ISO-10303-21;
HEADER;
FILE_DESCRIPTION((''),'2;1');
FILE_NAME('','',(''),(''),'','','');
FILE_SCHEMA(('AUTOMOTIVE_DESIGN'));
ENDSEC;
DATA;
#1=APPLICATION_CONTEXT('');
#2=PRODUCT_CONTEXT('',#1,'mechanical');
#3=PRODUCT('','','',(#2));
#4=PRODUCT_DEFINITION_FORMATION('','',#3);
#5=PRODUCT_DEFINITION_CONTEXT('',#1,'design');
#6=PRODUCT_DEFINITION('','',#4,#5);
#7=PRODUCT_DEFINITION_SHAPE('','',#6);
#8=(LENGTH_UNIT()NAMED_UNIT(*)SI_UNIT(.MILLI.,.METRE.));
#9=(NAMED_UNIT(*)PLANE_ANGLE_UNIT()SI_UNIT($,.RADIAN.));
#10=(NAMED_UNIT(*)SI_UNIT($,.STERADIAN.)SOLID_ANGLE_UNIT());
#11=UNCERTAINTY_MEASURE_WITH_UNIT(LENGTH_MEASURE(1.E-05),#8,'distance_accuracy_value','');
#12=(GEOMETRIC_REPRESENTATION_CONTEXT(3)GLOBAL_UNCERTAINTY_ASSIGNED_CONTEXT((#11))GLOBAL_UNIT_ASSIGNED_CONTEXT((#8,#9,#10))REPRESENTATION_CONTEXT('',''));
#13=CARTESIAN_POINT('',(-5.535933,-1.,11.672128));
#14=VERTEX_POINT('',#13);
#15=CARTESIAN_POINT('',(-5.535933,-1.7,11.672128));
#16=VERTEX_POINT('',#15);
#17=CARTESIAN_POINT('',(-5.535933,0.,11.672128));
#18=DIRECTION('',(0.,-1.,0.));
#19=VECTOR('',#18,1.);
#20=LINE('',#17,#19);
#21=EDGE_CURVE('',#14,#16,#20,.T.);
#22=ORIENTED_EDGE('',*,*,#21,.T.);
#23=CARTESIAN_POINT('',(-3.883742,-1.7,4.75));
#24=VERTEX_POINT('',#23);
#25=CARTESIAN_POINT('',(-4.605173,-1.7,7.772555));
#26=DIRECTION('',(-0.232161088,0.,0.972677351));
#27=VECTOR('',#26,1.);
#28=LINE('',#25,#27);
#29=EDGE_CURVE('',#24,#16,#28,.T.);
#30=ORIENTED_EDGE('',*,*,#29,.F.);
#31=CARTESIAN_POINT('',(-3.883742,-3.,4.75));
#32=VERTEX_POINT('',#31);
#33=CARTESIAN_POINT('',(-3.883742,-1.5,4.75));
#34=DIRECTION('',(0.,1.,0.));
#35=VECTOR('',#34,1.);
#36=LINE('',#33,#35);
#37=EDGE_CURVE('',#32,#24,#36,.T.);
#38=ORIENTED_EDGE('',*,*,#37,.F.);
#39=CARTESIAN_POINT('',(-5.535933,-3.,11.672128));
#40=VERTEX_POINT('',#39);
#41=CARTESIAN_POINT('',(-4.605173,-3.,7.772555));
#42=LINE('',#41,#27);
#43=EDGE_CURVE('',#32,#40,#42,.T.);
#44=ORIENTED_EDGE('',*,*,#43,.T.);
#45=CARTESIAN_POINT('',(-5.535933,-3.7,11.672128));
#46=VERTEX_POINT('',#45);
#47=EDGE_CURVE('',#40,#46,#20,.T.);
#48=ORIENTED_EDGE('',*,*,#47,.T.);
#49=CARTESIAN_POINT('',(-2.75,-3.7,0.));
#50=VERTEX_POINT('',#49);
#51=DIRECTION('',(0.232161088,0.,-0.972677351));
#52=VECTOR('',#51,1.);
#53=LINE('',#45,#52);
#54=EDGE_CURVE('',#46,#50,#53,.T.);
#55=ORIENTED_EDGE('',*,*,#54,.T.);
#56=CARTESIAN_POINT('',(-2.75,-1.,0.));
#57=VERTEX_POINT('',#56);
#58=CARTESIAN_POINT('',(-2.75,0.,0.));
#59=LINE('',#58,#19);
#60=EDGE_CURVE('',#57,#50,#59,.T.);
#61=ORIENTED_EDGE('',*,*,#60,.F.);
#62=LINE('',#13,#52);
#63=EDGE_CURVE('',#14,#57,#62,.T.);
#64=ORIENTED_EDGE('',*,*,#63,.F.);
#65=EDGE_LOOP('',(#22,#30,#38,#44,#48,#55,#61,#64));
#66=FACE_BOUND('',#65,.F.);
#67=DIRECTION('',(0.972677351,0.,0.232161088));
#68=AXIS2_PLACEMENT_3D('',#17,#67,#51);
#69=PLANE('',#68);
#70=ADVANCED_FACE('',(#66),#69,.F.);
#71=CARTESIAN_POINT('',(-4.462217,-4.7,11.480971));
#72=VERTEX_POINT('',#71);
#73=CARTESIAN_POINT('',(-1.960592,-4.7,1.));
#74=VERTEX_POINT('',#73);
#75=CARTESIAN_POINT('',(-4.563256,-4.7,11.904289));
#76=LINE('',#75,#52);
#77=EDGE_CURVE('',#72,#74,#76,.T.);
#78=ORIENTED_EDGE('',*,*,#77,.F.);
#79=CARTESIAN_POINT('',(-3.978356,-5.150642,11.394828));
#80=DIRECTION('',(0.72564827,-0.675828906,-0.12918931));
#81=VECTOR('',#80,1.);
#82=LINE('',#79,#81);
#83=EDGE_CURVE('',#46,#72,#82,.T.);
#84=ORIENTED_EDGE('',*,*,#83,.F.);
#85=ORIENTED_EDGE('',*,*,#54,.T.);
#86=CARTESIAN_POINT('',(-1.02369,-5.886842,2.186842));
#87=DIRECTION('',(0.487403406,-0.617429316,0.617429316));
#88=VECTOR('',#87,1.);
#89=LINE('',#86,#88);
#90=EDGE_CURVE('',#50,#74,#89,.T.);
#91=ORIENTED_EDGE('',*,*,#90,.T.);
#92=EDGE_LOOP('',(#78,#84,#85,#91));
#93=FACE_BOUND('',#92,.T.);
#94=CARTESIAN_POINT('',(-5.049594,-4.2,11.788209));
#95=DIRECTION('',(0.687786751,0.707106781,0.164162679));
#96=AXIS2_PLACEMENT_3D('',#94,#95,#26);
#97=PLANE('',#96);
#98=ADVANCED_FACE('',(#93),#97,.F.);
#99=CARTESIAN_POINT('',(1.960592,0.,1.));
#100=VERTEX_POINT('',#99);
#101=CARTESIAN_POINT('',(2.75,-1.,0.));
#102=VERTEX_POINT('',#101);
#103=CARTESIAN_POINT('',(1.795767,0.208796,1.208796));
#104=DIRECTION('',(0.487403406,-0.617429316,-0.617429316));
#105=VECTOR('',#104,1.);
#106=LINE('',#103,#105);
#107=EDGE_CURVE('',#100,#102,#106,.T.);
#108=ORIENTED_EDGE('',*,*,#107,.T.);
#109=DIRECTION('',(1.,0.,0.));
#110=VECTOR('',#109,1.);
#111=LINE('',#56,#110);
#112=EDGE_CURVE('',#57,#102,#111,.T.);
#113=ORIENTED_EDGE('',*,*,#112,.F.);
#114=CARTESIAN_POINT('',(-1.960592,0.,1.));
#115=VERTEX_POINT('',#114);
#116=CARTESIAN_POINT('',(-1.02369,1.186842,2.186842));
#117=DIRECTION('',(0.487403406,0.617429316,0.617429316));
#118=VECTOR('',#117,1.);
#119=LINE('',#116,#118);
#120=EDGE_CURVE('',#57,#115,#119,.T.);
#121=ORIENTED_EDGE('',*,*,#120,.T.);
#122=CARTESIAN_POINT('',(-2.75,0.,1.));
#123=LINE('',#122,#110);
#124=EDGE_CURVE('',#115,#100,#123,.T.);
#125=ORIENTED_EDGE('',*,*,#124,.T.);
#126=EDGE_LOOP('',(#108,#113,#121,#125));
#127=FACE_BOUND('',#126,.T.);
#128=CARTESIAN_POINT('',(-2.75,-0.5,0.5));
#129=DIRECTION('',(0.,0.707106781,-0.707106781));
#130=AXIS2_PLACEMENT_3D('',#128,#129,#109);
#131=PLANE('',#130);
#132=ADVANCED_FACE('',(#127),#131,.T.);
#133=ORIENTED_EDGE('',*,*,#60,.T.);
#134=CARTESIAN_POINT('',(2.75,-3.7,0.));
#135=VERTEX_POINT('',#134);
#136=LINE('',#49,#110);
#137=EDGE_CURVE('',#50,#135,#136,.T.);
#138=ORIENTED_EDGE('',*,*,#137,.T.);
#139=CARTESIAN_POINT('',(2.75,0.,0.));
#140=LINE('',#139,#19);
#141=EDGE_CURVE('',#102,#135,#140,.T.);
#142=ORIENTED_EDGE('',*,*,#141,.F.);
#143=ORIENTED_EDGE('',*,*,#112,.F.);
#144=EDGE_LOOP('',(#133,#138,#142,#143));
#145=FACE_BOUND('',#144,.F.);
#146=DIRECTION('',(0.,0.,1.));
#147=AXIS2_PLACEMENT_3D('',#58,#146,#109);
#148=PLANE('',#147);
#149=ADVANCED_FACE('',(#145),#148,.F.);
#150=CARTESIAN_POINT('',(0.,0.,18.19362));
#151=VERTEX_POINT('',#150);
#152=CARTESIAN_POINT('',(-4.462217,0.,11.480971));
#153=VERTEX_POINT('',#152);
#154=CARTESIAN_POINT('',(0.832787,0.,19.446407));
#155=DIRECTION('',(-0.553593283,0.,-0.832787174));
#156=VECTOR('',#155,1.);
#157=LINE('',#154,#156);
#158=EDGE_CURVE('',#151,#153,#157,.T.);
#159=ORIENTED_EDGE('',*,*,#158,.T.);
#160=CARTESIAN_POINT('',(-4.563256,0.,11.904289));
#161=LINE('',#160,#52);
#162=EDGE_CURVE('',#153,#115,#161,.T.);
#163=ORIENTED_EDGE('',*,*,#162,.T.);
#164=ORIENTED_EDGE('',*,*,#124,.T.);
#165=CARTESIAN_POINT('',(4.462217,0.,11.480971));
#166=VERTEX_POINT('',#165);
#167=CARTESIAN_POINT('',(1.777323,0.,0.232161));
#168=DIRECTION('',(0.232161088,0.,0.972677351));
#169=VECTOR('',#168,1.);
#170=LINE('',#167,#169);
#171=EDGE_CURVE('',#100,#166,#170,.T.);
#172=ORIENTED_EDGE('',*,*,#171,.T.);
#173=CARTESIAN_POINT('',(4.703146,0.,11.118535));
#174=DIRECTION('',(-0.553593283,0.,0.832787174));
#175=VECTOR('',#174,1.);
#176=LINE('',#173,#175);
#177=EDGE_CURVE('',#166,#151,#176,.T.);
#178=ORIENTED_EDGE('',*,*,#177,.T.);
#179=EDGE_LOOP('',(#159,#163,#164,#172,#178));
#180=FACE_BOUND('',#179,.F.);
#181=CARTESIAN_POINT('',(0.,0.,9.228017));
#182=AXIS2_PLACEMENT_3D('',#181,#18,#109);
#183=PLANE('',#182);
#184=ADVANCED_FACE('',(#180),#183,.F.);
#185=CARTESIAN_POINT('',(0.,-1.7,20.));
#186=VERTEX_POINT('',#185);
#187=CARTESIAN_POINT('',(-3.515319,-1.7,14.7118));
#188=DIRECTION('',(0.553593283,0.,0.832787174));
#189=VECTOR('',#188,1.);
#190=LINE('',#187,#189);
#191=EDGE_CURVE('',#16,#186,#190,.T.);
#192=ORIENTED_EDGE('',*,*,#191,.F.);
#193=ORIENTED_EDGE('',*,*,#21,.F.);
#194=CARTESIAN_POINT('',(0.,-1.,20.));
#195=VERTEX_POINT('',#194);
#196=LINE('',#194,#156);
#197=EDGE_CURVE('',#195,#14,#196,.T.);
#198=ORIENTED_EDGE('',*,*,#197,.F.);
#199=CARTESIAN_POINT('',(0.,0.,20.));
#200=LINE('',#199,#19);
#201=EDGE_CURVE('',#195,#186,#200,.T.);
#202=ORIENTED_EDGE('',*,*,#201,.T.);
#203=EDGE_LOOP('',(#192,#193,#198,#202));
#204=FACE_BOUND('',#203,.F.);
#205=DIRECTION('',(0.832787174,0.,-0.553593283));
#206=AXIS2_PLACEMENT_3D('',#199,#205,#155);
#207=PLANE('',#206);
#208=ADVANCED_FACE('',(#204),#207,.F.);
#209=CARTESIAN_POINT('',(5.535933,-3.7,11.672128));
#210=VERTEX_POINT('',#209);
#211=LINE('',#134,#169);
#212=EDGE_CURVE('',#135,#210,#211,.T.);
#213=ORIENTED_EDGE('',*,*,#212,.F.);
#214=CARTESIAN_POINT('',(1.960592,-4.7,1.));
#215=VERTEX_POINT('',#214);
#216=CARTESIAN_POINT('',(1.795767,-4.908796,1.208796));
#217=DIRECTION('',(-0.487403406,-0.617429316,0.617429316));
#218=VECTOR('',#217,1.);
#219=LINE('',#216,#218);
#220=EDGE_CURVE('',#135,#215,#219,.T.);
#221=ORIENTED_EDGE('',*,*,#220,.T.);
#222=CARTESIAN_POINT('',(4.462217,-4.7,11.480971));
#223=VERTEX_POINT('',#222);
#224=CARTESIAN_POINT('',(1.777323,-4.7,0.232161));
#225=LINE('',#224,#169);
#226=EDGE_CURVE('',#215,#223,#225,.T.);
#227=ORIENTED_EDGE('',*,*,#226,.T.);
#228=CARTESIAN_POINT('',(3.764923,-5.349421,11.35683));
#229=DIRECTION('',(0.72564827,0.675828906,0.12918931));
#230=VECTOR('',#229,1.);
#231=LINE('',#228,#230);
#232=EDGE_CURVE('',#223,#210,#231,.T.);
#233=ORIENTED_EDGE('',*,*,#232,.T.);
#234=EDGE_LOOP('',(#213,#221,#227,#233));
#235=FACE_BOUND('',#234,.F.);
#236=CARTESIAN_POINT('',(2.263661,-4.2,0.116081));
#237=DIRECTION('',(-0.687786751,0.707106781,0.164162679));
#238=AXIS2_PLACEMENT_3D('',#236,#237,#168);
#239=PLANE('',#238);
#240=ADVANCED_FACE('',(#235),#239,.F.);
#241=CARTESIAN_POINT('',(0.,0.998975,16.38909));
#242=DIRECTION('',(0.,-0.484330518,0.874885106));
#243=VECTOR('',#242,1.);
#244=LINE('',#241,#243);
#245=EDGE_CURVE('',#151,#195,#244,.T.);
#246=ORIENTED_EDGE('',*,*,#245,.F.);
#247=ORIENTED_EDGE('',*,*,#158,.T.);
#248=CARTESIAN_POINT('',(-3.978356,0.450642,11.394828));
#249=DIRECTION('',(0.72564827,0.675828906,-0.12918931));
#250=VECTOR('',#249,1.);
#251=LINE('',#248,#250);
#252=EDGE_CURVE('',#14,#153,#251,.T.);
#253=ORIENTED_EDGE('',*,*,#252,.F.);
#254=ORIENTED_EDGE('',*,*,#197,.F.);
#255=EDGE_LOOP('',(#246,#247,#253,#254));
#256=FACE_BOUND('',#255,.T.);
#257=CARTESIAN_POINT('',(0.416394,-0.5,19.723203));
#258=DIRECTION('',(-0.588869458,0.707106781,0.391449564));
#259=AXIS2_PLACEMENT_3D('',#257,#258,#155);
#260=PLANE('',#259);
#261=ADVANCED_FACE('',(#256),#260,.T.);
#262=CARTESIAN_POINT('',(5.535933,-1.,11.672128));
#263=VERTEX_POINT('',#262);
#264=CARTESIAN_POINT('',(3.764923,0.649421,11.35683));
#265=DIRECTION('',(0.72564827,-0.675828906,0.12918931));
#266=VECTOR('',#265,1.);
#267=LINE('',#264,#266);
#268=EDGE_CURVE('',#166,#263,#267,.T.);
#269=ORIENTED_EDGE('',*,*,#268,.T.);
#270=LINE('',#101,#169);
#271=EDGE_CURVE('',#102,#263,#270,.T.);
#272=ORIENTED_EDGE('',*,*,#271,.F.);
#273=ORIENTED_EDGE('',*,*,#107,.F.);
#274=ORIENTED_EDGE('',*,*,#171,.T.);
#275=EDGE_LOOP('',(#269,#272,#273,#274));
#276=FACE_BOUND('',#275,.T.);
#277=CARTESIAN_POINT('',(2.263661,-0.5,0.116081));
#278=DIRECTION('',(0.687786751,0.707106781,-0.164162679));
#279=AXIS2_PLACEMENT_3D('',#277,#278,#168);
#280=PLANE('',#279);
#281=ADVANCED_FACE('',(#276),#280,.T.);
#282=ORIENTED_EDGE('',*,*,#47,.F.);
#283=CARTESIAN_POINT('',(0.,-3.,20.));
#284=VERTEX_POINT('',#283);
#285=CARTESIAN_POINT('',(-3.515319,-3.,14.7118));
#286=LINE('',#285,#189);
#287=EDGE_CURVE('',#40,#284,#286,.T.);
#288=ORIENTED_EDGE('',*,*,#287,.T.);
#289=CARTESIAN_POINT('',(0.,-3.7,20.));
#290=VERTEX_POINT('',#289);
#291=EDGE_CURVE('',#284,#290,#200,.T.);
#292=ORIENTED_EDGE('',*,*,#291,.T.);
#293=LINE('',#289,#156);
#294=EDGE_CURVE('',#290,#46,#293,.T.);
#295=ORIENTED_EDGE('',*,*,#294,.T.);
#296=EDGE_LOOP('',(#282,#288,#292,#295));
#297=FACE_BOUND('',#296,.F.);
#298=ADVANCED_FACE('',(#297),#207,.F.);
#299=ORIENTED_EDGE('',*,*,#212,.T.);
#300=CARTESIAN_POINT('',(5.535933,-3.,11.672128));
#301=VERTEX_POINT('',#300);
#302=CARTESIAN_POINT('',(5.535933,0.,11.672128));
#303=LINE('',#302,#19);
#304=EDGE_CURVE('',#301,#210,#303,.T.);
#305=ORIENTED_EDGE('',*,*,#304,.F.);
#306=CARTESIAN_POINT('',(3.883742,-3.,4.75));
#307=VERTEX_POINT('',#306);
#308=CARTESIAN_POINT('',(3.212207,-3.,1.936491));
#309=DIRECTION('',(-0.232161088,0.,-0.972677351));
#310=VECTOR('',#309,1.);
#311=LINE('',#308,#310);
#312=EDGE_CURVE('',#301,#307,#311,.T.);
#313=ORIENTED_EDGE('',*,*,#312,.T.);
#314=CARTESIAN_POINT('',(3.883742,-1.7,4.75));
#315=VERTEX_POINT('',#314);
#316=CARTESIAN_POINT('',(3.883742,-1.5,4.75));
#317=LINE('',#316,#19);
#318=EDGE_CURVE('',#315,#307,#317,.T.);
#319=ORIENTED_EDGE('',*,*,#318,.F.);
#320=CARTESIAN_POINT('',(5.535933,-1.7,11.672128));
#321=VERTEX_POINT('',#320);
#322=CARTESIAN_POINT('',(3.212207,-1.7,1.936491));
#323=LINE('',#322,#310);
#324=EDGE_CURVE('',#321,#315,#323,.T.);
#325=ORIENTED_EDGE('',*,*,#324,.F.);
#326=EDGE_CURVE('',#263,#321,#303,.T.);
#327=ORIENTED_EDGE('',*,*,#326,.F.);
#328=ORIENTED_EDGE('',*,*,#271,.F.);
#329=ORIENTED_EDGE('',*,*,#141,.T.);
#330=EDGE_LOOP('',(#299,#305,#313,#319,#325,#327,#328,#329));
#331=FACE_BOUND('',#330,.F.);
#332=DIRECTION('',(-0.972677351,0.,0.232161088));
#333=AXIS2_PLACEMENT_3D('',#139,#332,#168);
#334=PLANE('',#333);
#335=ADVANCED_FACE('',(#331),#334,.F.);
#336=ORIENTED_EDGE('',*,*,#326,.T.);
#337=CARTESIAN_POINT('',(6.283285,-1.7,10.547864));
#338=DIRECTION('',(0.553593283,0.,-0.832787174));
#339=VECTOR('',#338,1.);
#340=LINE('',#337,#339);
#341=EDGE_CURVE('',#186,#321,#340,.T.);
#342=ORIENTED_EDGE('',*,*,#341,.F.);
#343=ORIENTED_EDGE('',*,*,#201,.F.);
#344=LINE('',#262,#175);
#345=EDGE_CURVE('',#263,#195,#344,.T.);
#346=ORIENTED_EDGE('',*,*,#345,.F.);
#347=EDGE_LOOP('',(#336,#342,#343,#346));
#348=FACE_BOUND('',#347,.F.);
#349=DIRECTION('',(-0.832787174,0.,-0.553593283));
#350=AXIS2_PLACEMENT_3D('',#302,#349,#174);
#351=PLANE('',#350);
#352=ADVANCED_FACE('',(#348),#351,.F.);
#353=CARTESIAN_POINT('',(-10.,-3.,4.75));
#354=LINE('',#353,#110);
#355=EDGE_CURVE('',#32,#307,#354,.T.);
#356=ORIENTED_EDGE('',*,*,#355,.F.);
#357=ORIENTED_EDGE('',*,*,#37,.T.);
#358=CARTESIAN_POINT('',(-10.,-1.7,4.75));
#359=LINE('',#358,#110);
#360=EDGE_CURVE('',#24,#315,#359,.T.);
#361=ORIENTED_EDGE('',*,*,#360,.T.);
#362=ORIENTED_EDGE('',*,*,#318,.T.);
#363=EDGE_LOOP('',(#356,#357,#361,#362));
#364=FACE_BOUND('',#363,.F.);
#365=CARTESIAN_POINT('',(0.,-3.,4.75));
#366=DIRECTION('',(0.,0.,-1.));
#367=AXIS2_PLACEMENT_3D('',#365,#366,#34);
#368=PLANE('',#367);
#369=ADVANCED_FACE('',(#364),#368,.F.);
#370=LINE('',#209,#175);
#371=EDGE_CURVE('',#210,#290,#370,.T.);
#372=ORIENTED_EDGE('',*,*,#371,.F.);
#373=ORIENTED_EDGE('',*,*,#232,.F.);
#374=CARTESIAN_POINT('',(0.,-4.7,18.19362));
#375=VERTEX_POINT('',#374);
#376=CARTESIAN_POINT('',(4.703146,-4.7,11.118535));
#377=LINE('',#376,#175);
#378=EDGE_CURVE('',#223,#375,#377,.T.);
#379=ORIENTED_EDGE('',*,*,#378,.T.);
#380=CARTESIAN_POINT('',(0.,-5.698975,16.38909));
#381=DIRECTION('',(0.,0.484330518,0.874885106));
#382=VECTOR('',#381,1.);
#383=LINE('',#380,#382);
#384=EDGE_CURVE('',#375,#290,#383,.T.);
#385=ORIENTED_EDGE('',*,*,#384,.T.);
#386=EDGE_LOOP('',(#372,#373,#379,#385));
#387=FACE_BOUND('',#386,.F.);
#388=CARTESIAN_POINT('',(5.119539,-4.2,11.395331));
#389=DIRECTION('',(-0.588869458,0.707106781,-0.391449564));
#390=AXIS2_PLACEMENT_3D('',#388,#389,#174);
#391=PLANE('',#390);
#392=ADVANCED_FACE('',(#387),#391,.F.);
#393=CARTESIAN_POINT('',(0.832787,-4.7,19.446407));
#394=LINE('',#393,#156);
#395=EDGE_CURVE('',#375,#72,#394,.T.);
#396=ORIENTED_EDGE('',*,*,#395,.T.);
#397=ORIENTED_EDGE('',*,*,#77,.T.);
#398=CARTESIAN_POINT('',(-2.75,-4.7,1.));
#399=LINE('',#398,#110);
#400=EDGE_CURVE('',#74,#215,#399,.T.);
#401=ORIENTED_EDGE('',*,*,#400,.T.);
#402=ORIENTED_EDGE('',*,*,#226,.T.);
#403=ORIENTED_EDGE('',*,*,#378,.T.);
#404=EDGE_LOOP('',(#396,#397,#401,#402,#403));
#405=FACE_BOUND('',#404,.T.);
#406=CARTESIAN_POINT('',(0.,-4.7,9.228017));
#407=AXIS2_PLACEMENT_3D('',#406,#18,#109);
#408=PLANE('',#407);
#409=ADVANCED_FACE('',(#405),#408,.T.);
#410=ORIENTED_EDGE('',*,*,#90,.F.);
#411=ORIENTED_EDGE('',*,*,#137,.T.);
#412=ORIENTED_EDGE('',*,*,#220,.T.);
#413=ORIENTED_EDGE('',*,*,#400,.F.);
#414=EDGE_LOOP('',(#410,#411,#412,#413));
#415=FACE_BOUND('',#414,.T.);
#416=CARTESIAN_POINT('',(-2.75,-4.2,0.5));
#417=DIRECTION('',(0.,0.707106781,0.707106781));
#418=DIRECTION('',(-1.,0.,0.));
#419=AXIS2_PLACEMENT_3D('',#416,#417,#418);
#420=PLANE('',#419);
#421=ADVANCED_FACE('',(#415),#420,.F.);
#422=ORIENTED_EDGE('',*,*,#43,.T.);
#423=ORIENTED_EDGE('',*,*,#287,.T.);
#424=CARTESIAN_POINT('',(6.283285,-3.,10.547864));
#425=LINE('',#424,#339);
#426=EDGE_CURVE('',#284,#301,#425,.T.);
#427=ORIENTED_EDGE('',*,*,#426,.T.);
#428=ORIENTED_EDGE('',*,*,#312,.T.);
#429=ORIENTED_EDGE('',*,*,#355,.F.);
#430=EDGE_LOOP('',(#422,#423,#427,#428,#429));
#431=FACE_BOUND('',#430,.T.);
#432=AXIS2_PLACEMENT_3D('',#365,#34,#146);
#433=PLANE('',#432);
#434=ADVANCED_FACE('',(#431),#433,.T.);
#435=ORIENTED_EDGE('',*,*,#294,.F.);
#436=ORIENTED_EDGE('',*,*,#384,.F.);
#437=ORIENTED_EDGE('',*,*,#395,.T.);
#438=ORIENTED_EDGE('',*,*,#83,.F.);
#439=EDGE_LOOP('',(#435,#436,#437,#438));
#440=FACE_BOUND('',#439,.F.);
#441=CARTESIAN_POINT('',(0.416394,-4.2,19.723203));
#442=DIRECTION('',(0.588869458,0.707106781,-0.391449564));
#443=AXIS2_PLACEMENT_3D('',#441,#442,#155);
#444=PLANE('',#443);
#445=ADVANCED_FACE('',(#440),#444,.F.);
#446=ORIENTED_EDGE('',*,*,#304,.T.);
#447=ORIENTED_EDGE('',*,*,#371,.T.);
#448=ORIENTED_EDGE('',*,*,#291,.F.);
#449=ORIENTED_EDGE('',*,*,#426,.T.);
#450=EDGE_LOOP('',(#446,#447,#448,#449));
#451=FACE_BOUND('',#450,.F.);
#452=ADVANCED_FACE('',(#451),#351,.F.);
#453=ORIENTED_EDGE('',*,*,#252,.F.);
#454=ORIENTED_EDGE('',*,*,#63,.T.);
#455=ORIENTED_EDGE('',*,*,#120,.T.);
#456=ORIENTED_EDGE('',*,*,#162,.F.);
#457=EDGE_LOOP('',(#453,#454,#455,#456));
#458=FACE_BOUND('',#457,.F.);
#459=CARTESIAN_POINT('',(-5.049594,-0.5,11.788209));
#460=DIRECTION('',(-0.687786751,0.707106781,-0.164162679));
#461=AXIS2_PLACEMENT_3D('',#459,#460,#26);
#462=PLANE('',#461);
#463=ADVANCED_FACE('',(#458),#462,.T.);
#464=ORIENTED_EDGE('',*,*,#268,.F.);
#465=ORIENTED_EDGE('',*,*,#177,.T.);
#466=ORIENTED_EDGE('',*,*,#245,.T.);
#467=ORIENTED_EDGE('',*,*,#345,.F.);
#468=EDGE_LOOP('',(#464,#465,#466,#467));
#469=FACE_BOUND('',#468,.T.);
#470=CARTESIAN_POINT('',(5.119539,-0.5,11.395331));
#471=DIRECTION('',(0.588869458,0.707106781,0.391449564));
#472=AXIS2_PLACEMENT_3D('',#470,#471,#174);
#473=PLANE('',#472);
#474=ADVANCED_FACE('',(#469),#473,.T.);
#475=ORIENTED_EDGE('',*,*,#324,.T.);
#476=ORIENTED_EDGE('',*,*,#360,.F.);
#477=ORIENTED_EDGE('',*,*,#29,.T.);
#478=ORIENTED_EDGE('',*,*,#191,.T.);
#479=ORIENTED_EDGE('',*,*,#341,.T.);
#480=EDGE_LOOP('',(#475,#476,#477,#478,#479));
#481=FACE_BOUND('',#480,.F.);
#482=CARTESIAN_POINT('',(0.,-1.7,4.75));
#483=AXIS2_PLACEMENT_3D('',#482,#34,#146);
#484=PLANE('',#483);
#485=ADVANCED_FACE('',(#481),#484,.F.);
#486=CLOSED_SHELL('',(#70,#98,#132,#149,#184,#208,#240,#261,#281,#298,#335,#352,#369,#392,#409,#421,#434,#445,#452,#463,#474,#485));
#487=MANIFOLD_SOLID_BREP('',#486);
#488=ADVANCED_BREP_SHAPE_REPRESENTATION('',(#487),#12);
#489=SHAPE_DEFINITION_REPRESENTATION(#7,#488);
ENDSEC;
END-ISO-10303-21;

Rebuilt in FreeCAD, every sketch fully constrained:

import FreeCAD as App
import Part
import Sketcher

V = App.Vector


def edges_at(feature, points):
    """Names of the edges that pass closest to the given points."""
    edges = feature.Shape.Edges
    near = lambda p: min(range(len(edges)), key=lambda i: edges[i].distToShape(Part.Vertex(*p))[0])
    return sorted({f"Edge{near(p) + 1}" for p in points})

doc = App.newDocument("Part")
body = doc.addObject("PartDesign::Body", "Body")

sketch1 = body.newObject("Sketcher::SketchObject", "Sketch")
sketch1.AttachmentSupport = (doc.getObject("XZ_Plane"), [""])
sketch1.MapMode = "FlatFace"
sketch1.addGeometry([
    Part.LineSegment(V(-5.535933, 11.672128, 0), V(-2.75, 0, 0)),
    Part.LineSegment(V(-2.75, 0, 0), V(2.75, 0, 0)),
    Part.LineSegment(V(2.75, 0, 0), V(5.535933, 11.672128, 0)),
    Part.LineSegment(V(5.535933, 11.672128, 0), V(0, 20, 0)),
    Part.LineSegment(V(0, 20, 0), V(-5.535933, 11.672128, 0)),
], False)
sketch1.addConstraint([
    Sketcher.Constraint("Coincident", 0, 2, 1, 1),
    Sketcher.Constraint("Coincident", 1, 2, 2, 1),
    Sketcher.Constraint("Coincident", 2, 2, 3, 1),
    Sketcher.Constraint("Coincident", 3, 2, 4, 1),
    Sketcher.Constraint("Coincident", 4, 2, 0, 1),
    Sketcher.Constraint("Horizontal", 1),
    Sketcher.Constraint("Symmetric", 0, 2, 1, 2, -1, 1),
    Sketcher.Constraint("Symmetric", 2, 2, 4, 2, -2),
    Sketcher.Constraint("PointOnObject", 3, 2, -2),
    Sketcher.Constraint("Distance", 0, 12.0),
    Sketcher.Constraint("Distance", 3, 10.0),
    Sketcher.Constraint("DistanceX", 1, 1, 1, 2, 5.5),
    Sketcher.Constraint("DistanceY", -1, 1, 3, 2, 20.0),
])
pad1 = body.newObject("PartDesign::Pad", "Pad")
pad1.Profile = sketch1
pad1.Length = 4.7

sketch2 = body.newObject("Sketcher::SketchObject", "Sketch001")
sketch2.AttachmentSupport = (doc.getObject("YZ_Plane"), [""])
sketch2.MapMode = "FlatFace"
sketch2.addGeometry([
    Part.LineSegment(V(-3, 24.75, 0), V(-3, 4.75, 0)),
    Part.LineSegment(V(-3, 4.75, 0), V(-1.7, 4.75, 0)),
    Part.LineSegment(V(-1.7, 4.75, 0), V(-1.7, 24.75, 0)),
    Part.LineSegment(V(-1.7, 24.75, 0), V(-3, 24.75, 0)),
], False)
sketch2.addConstraint([
    Sketcher.Constraint("Coincident", 0, 2, 1, 1),
    Sketcher.Constraint("Coincident", 1, 2, 2, 1),
    Sketcher.Constraint("Coincident", 2, 2, 3, 1),
    Sketcher.Constraint("Coincident", 3, 2, 0, 1),
    Sketcher.Constraint("Vertical", 0),
    Sketcher.Constraint("Horizontal", 1),
    Sketcher.Constraint("Vertical", 2),
    Sketcher.Constraint("Horizontal", 3),
    Sketcher.Constraint("DistanceY", 0, 2, 0, 1, 20.0),
    Sketcher.Constraint("DistanceX", 1, 1, 1, 2, 1.3),
    Sketcher.Constraint("DistanceX", 0, 2, -1, 1, 3.0),
    Sketcher.Constraint("DistanceY", -1, 1, 0, 2, 4.75),
])
pocket1 = body.newObject("PartDesign::Pocket", "Pocket")
pocket1.Profile = sketch2
pocket1.Length = 20
pocket1.Midplane = True
doc.recompute()

chamfer = body.newObject("PartDesign::Chamfer", "Chamfer")
chamfer.Base = (pocket1, edges_at(pocket1, [
    (-4.143, -4.7, 5.836),
    (0, -4.7, 0),
    (4.143, -4.7, 5.836),
    (2.768, -4.7, 15.836),
    (-2.768, -4.7, 15.836),
    (-4.143, 0, 5.836),
    (0, 0, 0),
    (4.143, 0, 5.836),
    (2.768, 0, 15.836),
    (-2.768, 0, 15.836),
]))
chamfer.Size = 1

doc.recompute()
